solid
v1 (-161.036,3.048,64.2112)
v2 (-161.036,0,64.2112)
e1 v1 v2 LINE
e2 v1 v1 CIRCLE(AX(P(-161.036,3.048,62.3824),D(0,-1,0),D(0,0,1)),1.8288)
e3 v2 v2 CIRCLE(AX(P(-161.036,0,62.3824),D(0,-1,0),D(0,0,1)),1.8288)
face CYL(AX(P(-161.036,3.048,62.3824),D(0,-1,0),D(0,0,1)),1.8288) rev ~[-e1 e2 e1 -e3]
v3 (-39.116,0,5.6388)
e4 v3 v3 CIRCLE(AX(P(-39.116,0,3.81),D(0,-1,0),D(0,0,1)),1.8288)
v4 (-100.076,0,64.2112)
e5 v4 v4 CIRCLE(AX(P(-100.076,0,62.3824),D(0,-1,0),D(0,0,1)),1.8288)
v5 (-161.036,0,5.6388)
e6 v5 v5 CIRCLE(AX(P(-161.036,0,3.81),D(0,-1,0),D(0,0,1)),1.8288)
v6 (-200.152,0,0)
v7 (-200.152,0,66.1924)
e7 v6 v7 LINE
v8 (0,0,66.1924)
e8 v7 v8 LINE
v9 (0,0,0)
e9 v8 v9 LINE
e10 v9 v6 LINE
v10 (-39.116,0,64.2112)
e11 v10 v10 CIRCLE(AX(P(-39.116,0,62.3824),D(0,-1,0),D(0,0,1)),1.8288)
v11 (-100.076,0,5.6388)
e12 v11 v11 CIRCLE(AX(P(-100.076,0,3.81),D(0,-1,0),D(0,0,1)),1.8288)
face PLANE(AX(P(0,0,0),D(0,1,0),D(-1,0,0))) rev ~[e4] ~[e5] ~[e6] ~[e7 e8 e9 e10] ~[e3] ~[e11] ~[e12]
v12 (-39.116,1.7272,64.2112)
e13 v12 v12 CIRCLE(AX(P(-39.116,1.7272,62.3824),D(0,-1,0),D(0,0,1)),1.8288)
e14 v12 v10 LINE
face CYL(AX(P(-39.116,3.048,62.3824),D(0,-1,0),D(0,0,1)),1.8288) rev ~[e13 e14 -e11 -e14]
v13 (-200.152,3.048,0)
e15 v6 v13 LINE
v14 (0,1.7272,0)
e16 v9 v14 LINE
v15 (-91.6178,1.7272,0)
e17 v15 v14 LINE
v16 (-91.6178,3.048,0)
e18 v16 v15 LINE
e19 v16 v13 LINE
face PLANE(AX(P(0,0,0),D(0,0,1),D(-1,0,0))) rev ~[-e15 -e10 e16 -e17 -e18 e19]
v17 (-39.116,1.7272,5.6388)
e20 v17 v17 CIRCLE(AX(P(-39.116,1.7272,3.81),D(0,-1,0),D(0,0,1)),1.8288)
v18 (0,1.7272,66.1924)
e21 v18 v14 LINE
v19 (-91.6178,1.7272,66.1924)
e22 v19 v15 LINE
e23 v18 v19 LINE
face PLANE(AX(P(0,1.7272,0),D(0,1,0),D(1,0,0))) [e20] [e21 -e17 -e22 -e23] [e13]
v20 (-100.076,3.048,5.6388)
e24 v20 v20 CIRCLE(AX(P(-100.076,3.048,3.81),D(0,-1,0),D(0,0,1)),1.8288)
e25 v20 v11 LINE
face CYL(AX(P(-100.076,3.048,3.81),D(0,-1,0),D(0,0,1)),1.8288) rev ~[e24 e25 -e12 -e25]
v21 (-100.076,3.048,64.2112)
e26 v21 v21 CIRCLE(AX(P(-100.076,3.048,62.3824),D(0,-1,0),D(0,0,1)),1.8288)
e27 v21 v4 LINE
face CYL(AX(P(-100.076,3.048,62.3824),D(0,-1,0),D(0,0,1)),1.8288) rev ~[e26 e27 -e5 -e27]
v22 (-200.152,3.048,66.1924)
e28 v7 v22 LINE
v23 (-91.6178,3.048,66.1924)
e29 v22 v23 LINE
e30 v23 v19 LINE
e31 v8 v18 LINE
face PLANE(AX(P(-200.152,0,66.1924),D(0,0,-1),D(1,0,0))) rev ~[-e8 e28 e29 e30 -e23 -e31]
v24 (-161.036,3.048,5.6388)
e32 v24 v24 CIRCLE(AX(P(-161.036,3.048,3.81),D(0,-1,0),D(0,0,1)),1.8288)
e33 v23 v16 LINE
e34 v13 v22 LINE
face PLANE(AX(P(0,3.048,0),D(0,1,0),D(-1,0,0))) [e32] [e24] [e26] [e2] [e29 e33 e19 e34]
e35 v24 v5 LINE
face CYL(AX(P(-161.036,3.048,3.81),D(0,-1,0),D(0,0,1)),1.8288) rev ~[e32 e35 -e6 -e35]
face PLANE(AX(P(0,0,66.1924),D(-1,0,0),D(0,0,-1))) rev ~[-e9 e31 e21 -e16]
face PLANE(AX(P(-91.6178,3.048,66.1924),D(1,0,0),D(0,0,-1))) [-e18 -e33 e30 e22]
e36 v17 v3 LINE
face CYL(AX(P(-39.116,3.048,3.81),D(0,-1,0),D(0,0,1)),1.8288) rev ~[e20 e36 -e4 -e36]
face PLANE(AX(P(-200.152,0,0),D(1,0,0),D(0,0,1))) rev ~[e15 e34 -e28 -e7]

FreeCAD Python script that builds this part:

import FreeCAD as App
import Part
import Sketcher

V = App.Vector
Q = App.Units.Quantity


def add_polygon(sketch, points):
    """Adds a closed chain of lines whose ends are joined by coincident constraints."""
    first, n = sketch.GeometryCount, len(points)
    for a, b in zip(points, points[1:] + points[:1]):
        sketch.addGeometry(Part.LineSegment(App.Vector(*a, 0), App.Vector(*b, 0)), False)
    for i in range(n):
        sketch.addConstraint(Sketcher.Constraint("Coincident", first + i, 2, first + (i + 1) % n, 1))

doc = App.newDocument("Part")
params = doc.addObject("Spreadsheet::Sheet", "Params")
for row, (alias, value) in enumerate([
    ("sketch1_width", "7.88 in"),
    ("sketch1_height", "2.606 in"),
    ("pad1_length", "0.12 in"),
    ("sketch2_diameter", "0.144 in"),
    ("hole_diameter", "0.144 in"),
    ("sketch3_width", "3.607 in"),
    ("sketch3_height", "2.606 in"),
    ("pocket1_length", "0.052 in"),
], start=1):
    params.set(f"A{row}", alias)
    params.set(f"B{row}", "=" + value)
    params.setAlias(f"B{row}", alias)

body = doc.addObject("PartDesign::Body", "Body")

sketch1 = body.newObject("Sketcher::SketchObject", "Sketch")
sketch1.AttachmentSupport = (doc.getObject("XZ_Plane"), [""])
sketch1.MapMode = "FlatFace"
add_polygon(sketch1, [(0, 66.1924), (0, 0), (-200.152, 0), (-200.152, 66.1924)])
sketch1.addConstraint(Sketcher.Constraint("Vertical", 0))
sketch1.addConstraint(Sketcher.Constraint("Horizontal", 1))
sketch1.addConstraint(Sketcher.Constraint("Vertical", 2))
sketch1.addConstraint(Sketcher.Constraint("Horizontal", 3))
sketch1.addConstraint(Sketcher.Constraint("Coincident", 0, 2, -1, 1))
sketch1.addConstraint(Sketcher.Constraint("DistanceX", 1, 2, 1, 1, Q("7.88 in")))
sketch1.addConstraint(Sketcher.Constraint("DistanceY", 0, 2, 0, 1, Q("2.606 in")))
sketch1.setExpression("Constraints[9]", "Params.sketch1_width")
sketch1.setExpression("Constraints[10]", "Params.sketch1_height")
pad1 = body.newObject("PartDesign::Pad", "Pad")
pad1.Profile = sketch1
pad1.setExpression("Length", "Params.pad1_length")
pad1.Reversed = True

sketch2 = body.newObject("Sketcher::SketchObject", "Sketch001")
sketch2.AttachmentSupport = (doc.getObject("XZ_Plane"), [""])
sketch2.MapMode = "FlatFace"
sketch2.AttachmentOffset = App.Placement(V(0, 0, -0.12 * 25.4), App.Rotation())
sketch2.addGeometry(Part.Circle(V(-100.076, 62.3824, 0), V(0, 0, 1), 1.8288), False)
sketch2.addGeometry(Part.Circle(V(-100.076, 3.81, 0), V(0, 0, 1), 1.8288), False)
sketch2.addGeometry(Part.Circle(V(-39.116, 62.3824, 0), V(0, 0, 1), 1.8288), False)
sketch2.addGeometry(Part.Circle(V(-39.116, 3.81, 0), V(0, 0, 1), 1.8288), False)
sketch2.addGeometry(Part.Circle(V(-161.036, 3.81, 0), V(0, 0, 1), 1.8288), False)
sketch2.addGeometry(Part.Circle(V(-161.036, 62.3824, 0), V(0, 0, 1), 1.8288), False)
sketch2.addConstraint(Sketcher.Constraint("Equal", 0, 1))
sketch2.addConstraint(Sketcher.Constraint("Equal", 1, 2))
sketch2.addConstraint(Sketcher.Constraint("Equal", 2, 3))
sketch2.addConstraint(Sketcher.Constraint("Equal", 3, 4))
sketch2.addConstraint(Sketcher.Constraint("Equal", 4, 5))
sketch2.addConstraint(Sketcher.Constraint("Horizontal", 0, 3, 2, 3))
sketch2.addConstraint(Sketcher.Constraint("Horizontal", 1, 3, 3, 3))
sketch2.addConstraint(Sketcher.Constraint("Horizontal", 3, 3, 4, 3))
sketch2.addConstraint(Sketcher.Constraint("Horizontal", 2, 3, 5, 3))
sketch2.addConstraint(Sketcher.Constraint("Vertical", 0, 3, 1, 3))
sketch2.addConstraint(Sketcher.Constraint("Vertical", 2, 3, 3, 3))
sketch2.addConstraint(Sketcher.Constraint("Vertical", 4, 3, 5, 3))
sketch2.addConstraint(Sketcher.Constraint("Diameter", 0, Q("0.144 in")))
sketch2.addConstraint(Sketcher.Constraint("DistanceX", 0, 3, 2, 3, Q("2.4 in")))
sketch2.addConstraint(Sketcher.Constraint("DistanceX", 4, 3, 1, 3, Q("2.4 in")))
sketch2.addConstraint(Sketcher.Constraint("DistanceX", 0, 3, -1, 1, Q("3.94 in")))
sketch2.addConstraint(Sketcher.Constraint("DistanceY", -1, 1, 1, 3, Q("0.15 in")))
sketch2.addConstraint(Sketcher.Constraint("DistanceY", -1, 1, 0, 3, Q("2.456 in")))
sketch2.setExpression("Constraints[12]", "Params.sketch2_diameter")
doc.recompute()
hole = body.newObject("PartDesign::Hole", "Hole")
hole.Profile = sketch2
hole.ThreadType = "None"
hole.setExpression("Diameter", "Params.hole_diameter")
hole.DepthType = "ThroughAll"
hole.Reversed = True

sketch3 = body.newObject("Sketcher::SketchObject", "Sketch002")
sketch3.AttachmentSupport = (doc.getObject("XZ_Plane"), [""])
sketch3.MapMode = "FlatFace"
sketch3.AttachmentOffset = App.Placement(V(0, 0, -0.12 * 25.4), App.Rotation())
add_polygon(sketch3, [(-91.6178, 66.1924), (0, 66.1924), (0, 0), (-91.6178, 0)])
sketch3.addConstraint(Sketcher.Constraint("Horizontal", 0))
sketch3.addConstraint(Sketcher.Constraint("Vertical", 1))
sketch3.addConstraint(Sketcher.Constraint("Horizontal", 2))
sketch3.addConstraint(Sketcher.Constraint("Vertical", 3))
sketch3.addConstraint(Sketcher.Constraint("Coincident", 1, 2, -1, 1))
sketch3.addConstraint(Sketcher.Constraint("DistanceX", 0, 1, 0, 2, Q("3.607 in")))
sketch3.addConstraint(Sketcher.Constraint("DistanceY", 1, 2, 1, 1, Q("2.606 in")))
sketch3.setExpression("Constraints[9]", "Params.sketch3_width")
sketch3.setExpression("Constraints[10]", "Params.sketch3_height")
pocket1 = body.newObject("PartDesign::Pocket", "Pocket")
pocket1.Profile = sketch3
pocket1.setExpression("Length", "Params.pocket1_length")
pocket1.Reversed = True

doc.recompute()
